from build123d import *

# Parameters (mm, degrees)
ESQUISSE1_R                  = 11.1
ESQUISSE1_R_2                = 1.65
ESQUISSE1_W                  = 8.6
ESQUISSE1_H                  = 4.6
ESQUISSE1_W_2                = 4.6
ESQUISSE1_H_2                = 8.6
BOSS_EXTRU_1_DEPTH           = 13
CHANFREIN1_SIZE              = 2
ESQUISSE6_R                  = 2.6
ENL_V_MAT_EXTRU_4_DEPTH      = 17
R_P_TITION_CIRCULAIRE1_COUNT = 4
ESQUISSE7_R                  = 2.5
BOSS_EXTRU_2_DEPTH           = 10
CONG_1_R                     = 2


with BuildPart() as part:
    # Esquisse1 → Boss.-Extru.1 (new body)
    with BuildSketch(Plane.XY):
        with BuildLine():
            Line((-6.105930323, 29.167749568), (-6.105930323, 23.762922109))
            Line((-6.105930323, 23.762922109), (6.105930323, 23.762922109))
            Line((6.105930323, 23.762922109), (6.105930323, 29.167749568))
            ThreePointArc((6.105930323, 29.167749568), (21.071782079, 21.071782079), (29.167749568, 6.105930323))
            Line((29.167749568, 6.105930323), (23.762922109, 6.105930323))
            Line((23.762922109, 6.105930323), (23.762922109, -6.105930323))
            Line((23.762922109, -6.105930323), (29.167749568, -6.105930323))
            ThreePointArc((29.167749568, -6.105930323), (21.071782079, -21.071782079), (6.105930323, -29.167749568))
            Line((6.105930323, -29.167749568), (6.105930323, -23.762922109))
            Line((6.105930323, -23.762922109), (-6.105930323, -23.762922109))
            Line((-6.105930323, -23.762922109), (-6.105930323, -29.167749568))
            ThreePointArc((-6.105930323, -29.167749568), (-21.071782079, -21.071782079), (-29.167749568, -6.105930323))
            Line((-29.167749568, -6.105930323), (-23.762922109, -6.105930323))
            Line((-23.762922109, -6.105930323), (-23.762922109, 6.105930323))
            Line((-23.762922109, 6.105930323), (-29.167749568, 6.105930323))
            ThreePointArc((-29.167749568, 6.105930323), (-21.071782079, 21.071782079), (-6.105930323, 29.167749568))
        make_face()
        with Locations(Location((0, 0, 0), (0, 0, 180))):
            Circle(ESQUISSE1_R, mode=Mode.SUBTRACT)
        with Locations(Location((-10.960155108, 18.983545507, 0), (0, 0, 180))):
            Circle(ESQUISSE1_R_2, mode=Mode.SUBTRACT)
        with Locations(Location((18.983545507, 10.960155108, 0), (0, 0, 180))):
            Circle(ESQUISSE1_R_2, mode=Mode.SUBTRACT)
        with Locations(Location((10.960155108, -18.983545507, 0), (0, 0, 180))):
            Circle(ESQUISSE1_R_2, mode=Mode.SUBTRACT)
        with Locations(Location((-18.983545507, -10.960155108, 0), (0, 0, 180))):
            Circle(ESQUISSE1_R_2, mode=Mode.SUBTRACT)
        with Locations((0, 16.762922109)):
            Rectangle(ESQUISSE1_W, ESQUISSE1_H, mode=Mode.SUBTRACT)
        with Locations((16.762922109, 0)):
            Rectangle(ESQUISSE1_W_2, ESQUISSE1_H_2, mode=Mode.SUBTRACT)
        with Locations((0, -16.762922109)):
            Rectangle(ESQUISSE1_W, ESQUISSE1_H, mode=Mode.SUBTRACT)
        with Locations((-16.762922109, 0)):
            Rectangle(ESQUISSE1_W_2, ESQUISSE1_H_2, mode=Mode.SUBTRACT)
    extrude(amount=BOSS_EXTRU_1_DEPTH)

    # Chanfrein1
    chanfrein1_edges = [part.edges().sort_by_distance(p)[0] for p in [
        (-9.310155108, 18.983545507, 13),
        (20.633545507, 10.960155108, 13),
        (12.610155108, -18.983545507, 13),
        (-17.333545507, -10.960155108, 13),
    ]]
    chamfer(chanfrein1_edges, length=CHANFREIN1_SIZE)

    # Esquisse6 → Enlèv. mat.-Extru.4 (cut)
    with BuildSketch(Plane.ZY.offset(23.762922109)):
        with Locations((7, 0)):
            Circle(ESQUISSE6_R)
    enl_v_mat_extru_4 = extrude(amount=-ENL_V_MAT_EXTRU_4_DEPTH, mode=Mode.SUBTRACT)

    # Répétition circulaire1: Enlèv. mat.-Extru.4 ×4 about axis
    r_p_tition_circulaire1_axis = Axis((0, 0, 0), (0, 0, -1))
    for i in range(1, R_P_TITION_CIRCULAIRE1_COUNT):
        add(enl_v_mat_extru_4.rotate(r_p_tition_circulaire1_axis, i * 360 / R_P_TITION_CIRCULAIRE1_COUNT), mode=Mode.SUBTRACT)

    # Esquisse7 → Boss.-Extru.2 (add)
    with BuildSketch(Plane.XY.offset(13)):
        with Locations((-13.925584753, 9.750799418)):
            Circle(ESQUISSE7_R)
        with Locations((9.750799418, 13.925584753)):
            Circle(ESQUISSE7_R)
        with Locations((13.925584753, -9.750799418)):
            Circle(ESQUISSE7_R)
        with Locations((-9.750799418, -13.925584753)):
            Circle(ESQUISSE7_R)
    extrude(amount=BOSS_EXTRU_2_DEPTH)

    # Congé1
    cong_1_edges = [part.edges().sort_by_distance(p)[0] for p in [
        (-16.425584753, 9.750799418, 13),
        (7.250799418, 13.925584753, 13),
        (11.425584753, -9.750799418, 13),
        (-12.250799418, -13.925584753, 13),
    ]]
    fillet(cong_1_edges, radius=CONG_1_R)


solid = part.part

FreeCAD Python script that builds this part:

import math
import FreeCAD as App
import Part
import Sketcher
from FreeCAD import Vector
Q = App.Units.Quantity


def edges_at(feature, points):
    """Names of the edges that pass closest to the given points."""
    edges = feature.Shape.Edges
    near = lambda p: min(range(len(edges)), key=lambda i: edges[i].distToShape(Part.Vertex(*p))[0])
    return sorted({f"Edge{near(p) + 1}" for p in points})


def add_polygon(sketch, points):
    """Adds a closed chain of lines whose ends are joined by coincident constraints."""
    first, n = sketch.GeometryCount, len(points)
    for a, b in zip(points, points[1:] + points[:1]):
        sketch.addGeometry(Part.LineSegment(App.Vector(*a, 0), App.Vector(*b, 0)), False)
    for i in range(n):
        sketch.addConstraint(Sketcher.Constraint("Coincident", first + i, 2, first + (i + 1) % n, 1))

doc = App.newDocument("Part")
body = doc.addObject("PartDesign::Body", "Body")

# Sketch on XY plane
sketch1 = body.newObject("Sketcher::SketchObject", "Sketch")
sketch1.AttachmentSupport = (doc.getObject("XY_Plane"), [""])
sketch1.MapMode = "FlatFace"
sketch1.addGeometry(Part.LineSegment(Vector(-6.10593, 23.762922, 0), Vector(-6.10593, 29.16775, 0)), False)  # 0
sketch1.addGeometry(Part.ArcOfCircle(Part.Circle(Vector(0, 0, 0), Vector(0, 0, 1), 29.8), math.radians(101.823469), math.radians(168.176531)), False)  # 1
sketch1.addGeometry(Part.LineSegment(Vector(-29.16775, 6.10593, 0), Vector(-23.762922, 6.10593, 0)), False)  # 2
sketch1.addGeometry(Part.LineSegment(Vector(-23.762922, 6.10593, 0), Vector(-23.762922, -6.10593, 0)), False)  # 3
sketch1.addGeometry(Part.LineSegment(Vector(-23.762922, -6.10593, 0), Vector(-29.16775, -6.10593, 0)), False)  # 4
sketch1.addGeometry(Part.ArcOfCircle(Part.Circle(Vector(0, 0, 0), Vector(0, 0, 1), 29.8), math.radians(-168.176531), math.radians(-101.823469)), False)  # 5
sketch1.addGeometry(Part.LineSegment(Vector(-6.10593, -29.16775, 0), Vector(-6.10593, -23.762922, 0)), False)  # 6
sketch1.addGeometry(Part.LineSegment(Vector(-6.10593, -23.762922, 0), Vector(6.10593, -23.762922, 0)), False)  # 7
sketch1.addGeometry(Part.LineSegment(Vector(6.10593, -23.762922, 0), Vector(6.10593, -29.16775, 0)), False)  # 8
sketch1.addGeometry(Part.ArcOfCircle(Part.Circle(Vector(0, 0, 0), Vector(0, 0, 1), 29.8), math.radians(-78.176531), math.radians(-11.823469)), False)  # 9
sketch1.addGeometry(Part.LineSegment(Vector(29.16775, -6.10593, 0), Vector(23.762922, -6.10593, 0)), False)  # 10
sketch1.addGeometry(Part.LineSegment(Vector(23.762922, -6.10593, 0), Vector(23.762922, 6.10593, 0)), False)  # 11
sketch1.addGeometry(Part.LineSegment(Vector(23.762922, 6.10593, 0), Vector(29.16775, 6.10593, 0)), False)  # 12
sketch1.addGeometry(Part.ArcOfCircle(Part.Circle(Vector(0, 0, 0), Vector(0, 0, 1), 29.8), math.radians(11.823469), math.radians(78.176531)), False)  # 13
sketch1.addGeometry(Part.LineSegment(Vector(6.10593, 29.16775, 0), Vector(6.10593, 23.762922, 0)), False)  # 14
sketch1.addGeometry(Part.LineSegment(Vector(6.10593, 23.762922, 0), Vector(-6.10593, 23.762922, 0)), False)  # 15
sketch1.addGeometry(Part.Circle(Vector(10.960155, -18.983546, 0), Vector(0, 0, 1), 1.65), False)  # 16
add_polygon(sketch1, [(-4.3, -19.062922), (-4.3, -14.462922), (4.3, -14.462922), (4.3, -19.062922)])  # lines 17-20
sketch1.addGeometry(Part.Circle(Vector(-18.983546, -10.960155, 0), Vector(0, 0, 1), 1.65), False)  # 21
add_polygon(sketch1, [(14.462922, -4.3), (14.462922, 4.3), (19.062922, 4.3), (19.062922, -4.3)])  # lines 22-25
sketch1.addGeometry(Part.Circle(Vector(18.983546, 10.960155, 0), Vector(0, 0, 1), 1.65), False)  # 26
sketch1.addGeometry(Part.Circle(Vector(0, 0, 0), Vector(0, 0, 1), 11.1), False)  # 27
add_polygon(sketch1, [(-19.062922, -4.3), (-19.062922, 4.3), (-14.462922, 4.3), (-14.462922, -4.3)])  # lines 28-31
add_polygon(sketch1, [(-4.3, 14.462922), (-4.3, 19.062922), (4.3, 19.062922), (4.3, 14.462922)])  # lines 32-35
sketch1.addGeometry(Part.Circle(Vector(-10.960155, 18.983546, 0), Vector(0, 0, 1), 1.65), False)  # 36
sketch1.addConstraint([
    Sketcher.Constraint("Coincident", 0, 2, 1, 1),
    Sketcher.Constraint("Coincident", 1, 2, 2, 1),
    Sketcher.Constraint("Coincident", 2, 2, 3, 1),
    Sketcher.Constraint("Coincident", 3, 2, 4, 1),
    Sketcher.Constraint("Coincident", 4, 2, 5, 1),
    Sketcher.Constraint("Coincident", 5, 2, 6, 1),
    Sketcher.Constraint("Coincident", 6, 2, 7, 1),
    Sketcher.Constraint("Coincident", 7, 2, 8, 1),
    Sketcher.Constraint("Coincident", 8, 2, 9, 1),
    Sketcher.Constraint("Coincident", 9, 2, 10, 1),
    Sketcher.Constraint("Coincident", 10, 2, 11, 1),
    Sketcher.Constraint("Coincident", 11, 2, 12, 1),
    Sketcher.Constraint("Coincident", 12, 2, 13, 1),
    Sketcher.Constraint("Coincident", 13, 2, 14, 1),
    Sketcher.Constraint("Coincident", 14, 2, 15, 1),
    Sketcher.Constraint("Coincident", 15, 2, 0, 1),
    Sketcher.Constraint("Vertical", 0),
    Sketcher.Constraint("Horizontal", 2),
    Sketcher.Constraint("Vertical", 3),
    Sketcher.Constraint("Horizontal", 4),
    Sketcher.Constraint("Vertical", 6),
    Sketcher.Constraint("Horizontal", 7),
    Sketcher.Constraint("Vertical", 8),
    Sketcher.Constraint("Horizontal", 10),
    Sketcher.Constraint("Vertical", 11),
    Sketcher.Constraint("Horizontal", 12),
    Sketcher.Constraint("Vertical", 14),
    Sketcher.Constraint("Horizontal", 15),
    Sketcher.Constraint("Vertical", 17),
    Sketcher.Constraint("Horizontal", 18),
    Sketcher.Constraint("Vertical", 19),
    Sketcher.Constraint("Horizontal", 20),
    Sketcher.Constraint("Vertical", 22),
    Sketcher.Constraint("Horizontal", 23),
    Sketcher.Constraint("Vertical", 24),
    Sketcher.Constraint("Horizontal", 25),
    Sketcher.Constraint("Vertical", 28),
    Sketcher.Constraint("Horizontal", 29),
    Sketcher.Constraint("Vertical", 30),
    Sketcher.Constraint("Horizontal", 31),
    Sketcher.Constraint("Vertical", 32),
    Sketcher.Constraint("Horizontal", 33),
    Sketcher.Constraint("Vertical", 34),
    Sketcher.Constraint("Horizontal", 35),
    Sketcher.Constraint("Coincident", 1, 3, -1, 1),
    Sketcher.Constraint("Coincident", 5, 3, -1, 1),
    Sketcher.Constraint("Coincident", 9, 3, -1, 1),
    Sketcher.Constraint("Coincident", 13, 3, -1, 1),
    Sketcher.Constraint("Coincident", 27, 3, -1, 1),
    Sketcher.Constraint("Equal", 1, 5),
    Sketcher.Constraint("Equal", 5, 9),
    Sketcher.Constraint("Equal", 9, 13),
    Sketcher.Constraint("Equal", 16, 21),
    Sketcher.Constraint("Equal", 21, 26),
    Sketcher.Constraint("Equal", 26, 36),
    Sketcher.Constraint("Symmetric", 21, 3, 26, 3, -1, 1),
    Sketcher.Constraint("Symmetric", 16, 3, 36, 3, -1, 1),
    Sketcher.Constraint("Symmetric", 2, 2, 10, 2, -1, 1),
    Sketcher.Constraint("Symmetric", 6, 2, 14, 2, -1, 1),
    Sketcher.Constraint("Symmetric", 24, 2, 28, 2, -1, 1),
    Sketcher.Constraint("Symmetric", 22, 2, 30, 2, -1, 1),
    Sketcher.Constraint("Symmetric", 19, 2, 32, 2, -1, 1),
    Sketcher.Constraint("Symmetric", 17, 2, 34, 2, -1, 1),
    Sketcher.Constraint("Horizontal", 5, 2, 8, 2),
    Sketcher.Constraint("Horizontal", 4, 2, 9, 2),
    Sketcher.Constraint("Horizontal", 2, 2, 11, 2),
    Sketcher.Constraint("Horizontal", 0, 2, 13, 2),
    Sketcher.Constraint("Horizontal", 23, 2, 28, 2),
    Sketcher.Constraint("Vertical", 20, 2, 32, 2),
    Sketcher.Constraint("Equal", 12, 0),
    Sketcher.Constraint("Equal", 15, 3),
    Sketcher.Constraint("Equal", 31, 17),
    Sketcher.Constraint("Equal", 35, 22),
    Sketcher.Constraint("Diameter", 16, Q("3.3 mm")),
    Sketcher.Constraint("Diameter", 27, Q("22.2 mm")),
    Sketcher.Constraint("Radius", 1, Q("29.8 mm")),
    Sketcher.Constraint("DistanceX", 18, 1, 18, 2, Q("8.6 mm")),
    Sketcher.Constraint("DistanceX", 23, 1, 23, 2, Q("4.6 mm")),
    Sketcher.Constraint("DistanceY", 6, 2, 17, 2, Q("9.3 mm")),
    Sketcher.Constraint("DistanceX", 22, 2, 11, 2, Q("9.3 mm")),
    Sketcher.Constraint("DistanceX", 7, 1, 7, 2, Q("12.211861 mm")),
    Sketcher.Constraint("DistanceX", 21, 3, 16, 3, Q("29.943701 mm")),
    Sketcher.Constraint("DistanceY", 16, 3, 26, 3, Q("29.943701 mm")),
    Sketcher.Constraint("DistanceX", 2, 1, 2, 2, Q("5.404827 mm")),
    Sketcher.Constraint("DistanceY", 16, 3, 21, 3, Q("8.02339 mm")),
    Sketcher.Constraint("DistanceX", 16, 3, 26, 3, Q("8.02339 mm")),
])
pad1 = body.newObject("PartDesign::Pad", "Pad")
pad1.Profile = sketch1
pad1.Length = 13
doc.recompute()

chamfer = body.newObject("PartDesign::Chamfer", "Chamfer")
chamfer.Base = (pad1, edges_at(pad1, [
    (-9.31, 18.984, 13),
    (20.634, 10.96, 13),
    (12.61, -18.984, 13),
    (-17.334, -10.96, 13),
]))
chamfer.Size = 2

# Sketch on YZ plane
sketch2 = body.newObject("Sketcher::SketchObject", "Sketch001")
sketch2.AttachmentSupport = (doc.getObject("YZ_Plane"), [""])
sketch2.MapMode = "FlatFace"
sketch2.AttachmentOffset = App.Placement(Vector(0, 0, -23.762922), App.Rotation())
sketch2.addGeometry(Part.Circle(Vector(0, 7, 0), Vector(0, 0, 1), 2.6), False)
sketch2.addConstraint([
    Sketcher.Constraint("PointOnObject", 0, 3, -2),
    Sketcher.Constraint("Diameter", 0, Q("5.2 mm")),
    Sketcher.Constraint("DistanceY", -1, 1, 0, 3, Q("7 mm")),
])
pocket1 = body.newObject("PartDesign::Pocket", "Pocket")
pocket1.Profile = sketch2
pocket1.Length = 17
pocket1.Reversed = True
doc.recompute()

polarpattern = body.newObject("PartDesign::PolarPattern", "PolarPattern")
polarpattern.Originals = [pocket1]
polarpattern.Axis = (doc.getObject("Z_Axis"), [""])
polarpattern.Angle = 360
polarpattern.Occurrences = 4
body.Tip = polarpattern

# Sketch on XY plane
sketch3 = body.newObject("Sketcher::SketchObject", "Sketch002")
sketch3.AttachmentSupport = (doc.getObject("XY_Plane"), [""])
sketch3.MapMode = "FlatFace"
sketch3.AttachmentOffset = App.Placement(Vector(0, 0, 13), App.Rotation())
sketch3.addGeometry([
    Part.Circle(Vector(-13.925585, 9.750799, 0), Vector(0, 0, 1), 2.5),
    Part.Circle(Vector(9.750799, 13.925585, 0), Vector(0, 0, 1), 2.5),
    Part.Circle(Vector(13.925585, -9.750799, 0), Vector(0, 0, 1), 2.5),
    Part.Circle(Vector(-9.750799, -13.925585, 0), Vector(0, 0, 1), 2.5),
], False)
sketch3.addConstraint([
    Sketcher.Constraint("Equal", 0, 1),
    Sketcher.Constraint("Equal", 1, 2),
    Sketcher.Constraint("Equal", 2, 3),
    Sketcher.Constraint("Symmetric", 0, 3, 2, 3, -1, 1),
    Sketcher.Constraint("Symmetric", 1, 3, 3, 3, -1, 1),
    Sketcher.Constraint("Diameter", 0, Q("5 mm")),
    Sketcher.Constraint("DistanceY", -1, 1, 0, 3, Q("9.750799 mm")),
    Sketcher.Constraint("DistanceX", -1, 1, 1, 3, Q("9.750799 mm")),
    Sketcher.Constraint("DistanceX", 0, 3, 2, 3, Q("27.85117 mm")),
    Sketcher.Constraint("DistanceY", 3, 3, 1, 3, Q("27.85117 mm")),
])
pad2 = body.newObject("PartDesign::Pad", "Pad001")
pad2.Profile = sketch3
pad2.Length = 10
doc.recompute()

fillet = body.newObject("PartDesign::Fillet", "Fillet")
fillet.Base = (pad2, edges_at(pad2, [
    (-16.426, 9.751, 13),
    (7.251, 13.926, 13),
    (11.426, -9.751, 13),
    (-12.251, -13.926, 13),
]))
fillet.Radius = 2

doc.recompute()
